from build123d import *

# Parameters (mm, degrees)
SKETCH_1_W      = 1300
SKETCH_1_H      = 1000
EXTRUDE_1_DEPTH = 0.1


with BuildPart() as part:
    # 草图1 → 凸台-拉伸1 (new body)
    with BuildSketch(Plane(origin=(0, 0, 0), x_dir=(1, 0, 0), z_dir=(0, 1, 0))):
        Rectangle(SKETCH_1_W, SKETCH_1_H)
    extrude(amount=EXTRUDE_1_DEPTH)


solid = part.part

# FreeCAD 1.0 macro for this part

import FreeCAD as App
import Part
import Sketcher

V = App.Vector
Q = App.Units.Quantity


def add_polygon(sketch, points):
    """Adds a closed chain of lines whose ends are joined by coincident constraints."""
    first, n = sketch.GeometryCount, len(points)
    for a, b in zip(points, points[1:] + points[:1]):
        sketch.addGeometry(Part.LineSegment(App.Vector(*a, 0), App.Vector(*b, 0)), False)
    for i in range(n):
        sketch.addConstraint(Sketcher.Constraint("Coincident", first + i, 2, first + (i + 1) % n, 1))

doc = App.newDocument("Part")
body = doc.addObject("PartDesign::Body", "Body")

sketch1 = body.newObject("Sketcher::SketchObject", "Sketch")
sketch1.AttachmentSupport = (doc.getObject("XZ_Plane"), [""])
sketch1.MapMode = "FlatFace"
add_polygon(sketch1, [(-650, -500), (-650, 500), (650, 500), (650, -500)])
sketch1.addConstraint(Sketcher.Constraint("Vertical", 0))
sketch1.addConstraint(Sketcher.Constraint("Horizontal", 1))
sketch1.addConstraint(Sketcher.Constraint("Vertical", 2))
sketch1.addConstraint(Sketcher.Constraint("Horizontal", 3))
sketch1.addConstraint(Sketcher.Constraint("Symmetric", 0, 2, 2, 2, -1, 1))
sketch1.addConstraint(Sketcher.Constraint("DistanceX", 1, 1, 1, 2, Q("1300 mm")))
sketch1.addConstraint(Sketcher.Constraint("DistanceY", 0, 1, 0, 2, Q("1000 mm")))
pad1 = body.newObject("PartDesign::Pad", "Pad")
pad1.Profile = sketch1
pad1.Length = 0.1
pad1.Reversed = True

doc.recompute()
